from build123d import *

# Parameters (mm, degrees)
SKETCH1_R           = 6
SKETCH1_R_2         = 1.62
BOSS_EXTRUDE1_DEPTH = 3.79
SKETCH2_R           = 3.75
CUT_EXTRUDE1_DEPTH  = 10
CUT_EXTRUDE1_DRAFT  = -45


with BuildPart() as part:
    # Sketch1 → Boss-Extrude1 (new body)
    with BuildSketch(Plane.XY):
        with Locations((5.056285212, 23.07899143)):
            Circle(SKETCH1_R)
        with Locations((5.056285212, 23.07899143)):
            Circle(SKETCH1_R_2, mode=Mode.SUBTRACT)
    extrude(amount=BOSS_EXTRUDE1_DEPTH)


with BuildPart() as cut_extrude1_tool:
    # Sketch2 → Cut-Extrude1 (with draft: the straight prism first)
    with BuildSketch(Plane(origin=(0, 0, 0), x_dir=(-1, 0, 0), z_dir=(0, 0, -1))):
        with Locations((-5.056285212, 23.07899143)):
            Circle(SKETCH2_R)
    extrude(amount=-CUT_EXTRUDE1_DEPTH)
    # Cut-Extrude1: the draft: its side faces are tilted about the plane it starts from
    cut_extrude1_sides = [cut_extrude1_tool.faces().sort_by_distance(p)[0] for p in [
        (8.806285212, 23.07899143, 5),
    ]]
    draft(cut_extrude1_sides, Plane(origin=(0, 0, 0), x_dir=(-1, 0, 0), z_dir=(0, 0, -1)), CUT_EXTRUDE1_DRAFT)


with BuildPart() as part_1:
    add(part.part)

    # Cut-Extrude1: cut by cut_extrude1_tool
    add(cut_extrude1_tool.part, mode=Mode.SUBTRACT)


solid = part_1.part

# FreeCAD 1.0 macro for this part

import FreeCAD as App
import Part
import Sketcher
from FreeCAD import Vector


def faces_at(feature, points):
    """Names of the faces that lie closest to the given points."""
    faces = feature.Shape.Faces
    near = lambda p: min(range(len(faces)), key=lambda i: faces[i].distToShape(Part.Vertex(*p))[0])
    return sorted({f"Face{near(p) + 1}" for p in points})

doc = App.newDocument("Part")
params = doc.addObject("Spreadsheet::Sheet", "Params")
for row, (alias, value) in enumerate([
    ("sketch1_diameter", "12 mm"),
    ("sketch1_diameter2", "3.24 mm"),
    ("pad1_length", "3.79 mm"),
    ("sketch2_diameter", "7.5 mm"),
    ("pad2_length", "10 mm"),
    ("draft_angle", "45 deg"),
], start=1):
    params.set(f"A{row}", alias)
    params.set(f"B{row}", "=" + value)
    params.setAlias(f"B{row}", alias)

body = doc.addObject("PartDesign::Body", "Body")

sketch1 = doc.addObject("Sketcher::SketchObject", "Sketch")
body.addObject(sketch1)
sketch1.AttachmentSupport = (doc.XY_Plane, [""])
sketch1.MapMode = "FlatFace"
sketch1.addGeometry([
    Part.Circle(Vector(5.1, 23.1, 0), Vector(0, 0, 1), 6),
    Part.Circle(Vector(5.1, 23.1, 0), Vector(0, 0, 1), 1.6),
], False)
sketch1.addConstraint([
    Sketcher.Constraint("Coincident", 1, 3, 0, 3),
    Sketcher.Constraint("Diameter", 0, 12.0),
    Sketcher.Constraint("Diameter", 1, 3.24),
    Sketcher.Constraint("DistanceY", -1, 1, 0, 3, 23.078991),
    Sketcher.Constraint("DistanceX", -1, 1, 0, 3, 5.056285),
])
sketch1.setExpression("Constraints[1]", "Params.sketch1_diameter")
sketch1.setExpression("Constraints[2]", "Params.sketch1_diameter2")
pad1 = doc.addObject("PartDesign::Pad", "Pad")
body.addObject(pad1)
pad1.Profile = sketch1
pad1.setExpression("Length", "Params.pad1_length")
body2 = doc.addObject("PartDesign::Body", "Body001")

sketch2 = doc.addObject("Sketcher::SketchObject", "Sketch001")
body2.addObject(sketch2)
sketch2.AttachmentSupport = (doc.getObject("XY_Plane001"), [""])
sketch2.MapMode = "FlatFace"
sketch2.addGeometry(Part.Circle(Vector(5.1, 23.1, 0), Vector(0, 0, 1), 3.8), False)
sketch2.addConstraint([
    Sketcher.Constraint("Diameter", 0, 7.5),
    Sketcher.Constraint("DistanceY", -1, 1, 0, 3, 23.078991),
    Sketcher.Constraint("DistanceX", -1, 1, 0, 3, 5.056285),
])
sketch2.setExpression("Constraints[0]", "Params.sketch2_diameter")
pad2 = doc.addObject("PartDesign::Pad", "Pad001")
body2.addObject(pad2)
pad2.Profile = sketch2
pad2.setExpression("Length", "Params.pad2_length")
doc.recompute()

draft = doc.addObject("PartDesign::Draft", "Draft")
body2.addObject(draft)
draft.Base = (pad2, faces_at(pad2, [(8.806, 23.079, 5)]))
draft.NeutralPlane = (doc.getObject("XY_Plane001"), [""])
draft.setExpression("Angle", "Params.draft_angle")
draft.Reversed = False
doc.recompute()

boolean = doc.addObject("PartDesign::Boolean", "Boolean")
body.addObject(boolean)
boolean.Type = "Cut"
boolean.addObjects([body2])

doc.recompute()
